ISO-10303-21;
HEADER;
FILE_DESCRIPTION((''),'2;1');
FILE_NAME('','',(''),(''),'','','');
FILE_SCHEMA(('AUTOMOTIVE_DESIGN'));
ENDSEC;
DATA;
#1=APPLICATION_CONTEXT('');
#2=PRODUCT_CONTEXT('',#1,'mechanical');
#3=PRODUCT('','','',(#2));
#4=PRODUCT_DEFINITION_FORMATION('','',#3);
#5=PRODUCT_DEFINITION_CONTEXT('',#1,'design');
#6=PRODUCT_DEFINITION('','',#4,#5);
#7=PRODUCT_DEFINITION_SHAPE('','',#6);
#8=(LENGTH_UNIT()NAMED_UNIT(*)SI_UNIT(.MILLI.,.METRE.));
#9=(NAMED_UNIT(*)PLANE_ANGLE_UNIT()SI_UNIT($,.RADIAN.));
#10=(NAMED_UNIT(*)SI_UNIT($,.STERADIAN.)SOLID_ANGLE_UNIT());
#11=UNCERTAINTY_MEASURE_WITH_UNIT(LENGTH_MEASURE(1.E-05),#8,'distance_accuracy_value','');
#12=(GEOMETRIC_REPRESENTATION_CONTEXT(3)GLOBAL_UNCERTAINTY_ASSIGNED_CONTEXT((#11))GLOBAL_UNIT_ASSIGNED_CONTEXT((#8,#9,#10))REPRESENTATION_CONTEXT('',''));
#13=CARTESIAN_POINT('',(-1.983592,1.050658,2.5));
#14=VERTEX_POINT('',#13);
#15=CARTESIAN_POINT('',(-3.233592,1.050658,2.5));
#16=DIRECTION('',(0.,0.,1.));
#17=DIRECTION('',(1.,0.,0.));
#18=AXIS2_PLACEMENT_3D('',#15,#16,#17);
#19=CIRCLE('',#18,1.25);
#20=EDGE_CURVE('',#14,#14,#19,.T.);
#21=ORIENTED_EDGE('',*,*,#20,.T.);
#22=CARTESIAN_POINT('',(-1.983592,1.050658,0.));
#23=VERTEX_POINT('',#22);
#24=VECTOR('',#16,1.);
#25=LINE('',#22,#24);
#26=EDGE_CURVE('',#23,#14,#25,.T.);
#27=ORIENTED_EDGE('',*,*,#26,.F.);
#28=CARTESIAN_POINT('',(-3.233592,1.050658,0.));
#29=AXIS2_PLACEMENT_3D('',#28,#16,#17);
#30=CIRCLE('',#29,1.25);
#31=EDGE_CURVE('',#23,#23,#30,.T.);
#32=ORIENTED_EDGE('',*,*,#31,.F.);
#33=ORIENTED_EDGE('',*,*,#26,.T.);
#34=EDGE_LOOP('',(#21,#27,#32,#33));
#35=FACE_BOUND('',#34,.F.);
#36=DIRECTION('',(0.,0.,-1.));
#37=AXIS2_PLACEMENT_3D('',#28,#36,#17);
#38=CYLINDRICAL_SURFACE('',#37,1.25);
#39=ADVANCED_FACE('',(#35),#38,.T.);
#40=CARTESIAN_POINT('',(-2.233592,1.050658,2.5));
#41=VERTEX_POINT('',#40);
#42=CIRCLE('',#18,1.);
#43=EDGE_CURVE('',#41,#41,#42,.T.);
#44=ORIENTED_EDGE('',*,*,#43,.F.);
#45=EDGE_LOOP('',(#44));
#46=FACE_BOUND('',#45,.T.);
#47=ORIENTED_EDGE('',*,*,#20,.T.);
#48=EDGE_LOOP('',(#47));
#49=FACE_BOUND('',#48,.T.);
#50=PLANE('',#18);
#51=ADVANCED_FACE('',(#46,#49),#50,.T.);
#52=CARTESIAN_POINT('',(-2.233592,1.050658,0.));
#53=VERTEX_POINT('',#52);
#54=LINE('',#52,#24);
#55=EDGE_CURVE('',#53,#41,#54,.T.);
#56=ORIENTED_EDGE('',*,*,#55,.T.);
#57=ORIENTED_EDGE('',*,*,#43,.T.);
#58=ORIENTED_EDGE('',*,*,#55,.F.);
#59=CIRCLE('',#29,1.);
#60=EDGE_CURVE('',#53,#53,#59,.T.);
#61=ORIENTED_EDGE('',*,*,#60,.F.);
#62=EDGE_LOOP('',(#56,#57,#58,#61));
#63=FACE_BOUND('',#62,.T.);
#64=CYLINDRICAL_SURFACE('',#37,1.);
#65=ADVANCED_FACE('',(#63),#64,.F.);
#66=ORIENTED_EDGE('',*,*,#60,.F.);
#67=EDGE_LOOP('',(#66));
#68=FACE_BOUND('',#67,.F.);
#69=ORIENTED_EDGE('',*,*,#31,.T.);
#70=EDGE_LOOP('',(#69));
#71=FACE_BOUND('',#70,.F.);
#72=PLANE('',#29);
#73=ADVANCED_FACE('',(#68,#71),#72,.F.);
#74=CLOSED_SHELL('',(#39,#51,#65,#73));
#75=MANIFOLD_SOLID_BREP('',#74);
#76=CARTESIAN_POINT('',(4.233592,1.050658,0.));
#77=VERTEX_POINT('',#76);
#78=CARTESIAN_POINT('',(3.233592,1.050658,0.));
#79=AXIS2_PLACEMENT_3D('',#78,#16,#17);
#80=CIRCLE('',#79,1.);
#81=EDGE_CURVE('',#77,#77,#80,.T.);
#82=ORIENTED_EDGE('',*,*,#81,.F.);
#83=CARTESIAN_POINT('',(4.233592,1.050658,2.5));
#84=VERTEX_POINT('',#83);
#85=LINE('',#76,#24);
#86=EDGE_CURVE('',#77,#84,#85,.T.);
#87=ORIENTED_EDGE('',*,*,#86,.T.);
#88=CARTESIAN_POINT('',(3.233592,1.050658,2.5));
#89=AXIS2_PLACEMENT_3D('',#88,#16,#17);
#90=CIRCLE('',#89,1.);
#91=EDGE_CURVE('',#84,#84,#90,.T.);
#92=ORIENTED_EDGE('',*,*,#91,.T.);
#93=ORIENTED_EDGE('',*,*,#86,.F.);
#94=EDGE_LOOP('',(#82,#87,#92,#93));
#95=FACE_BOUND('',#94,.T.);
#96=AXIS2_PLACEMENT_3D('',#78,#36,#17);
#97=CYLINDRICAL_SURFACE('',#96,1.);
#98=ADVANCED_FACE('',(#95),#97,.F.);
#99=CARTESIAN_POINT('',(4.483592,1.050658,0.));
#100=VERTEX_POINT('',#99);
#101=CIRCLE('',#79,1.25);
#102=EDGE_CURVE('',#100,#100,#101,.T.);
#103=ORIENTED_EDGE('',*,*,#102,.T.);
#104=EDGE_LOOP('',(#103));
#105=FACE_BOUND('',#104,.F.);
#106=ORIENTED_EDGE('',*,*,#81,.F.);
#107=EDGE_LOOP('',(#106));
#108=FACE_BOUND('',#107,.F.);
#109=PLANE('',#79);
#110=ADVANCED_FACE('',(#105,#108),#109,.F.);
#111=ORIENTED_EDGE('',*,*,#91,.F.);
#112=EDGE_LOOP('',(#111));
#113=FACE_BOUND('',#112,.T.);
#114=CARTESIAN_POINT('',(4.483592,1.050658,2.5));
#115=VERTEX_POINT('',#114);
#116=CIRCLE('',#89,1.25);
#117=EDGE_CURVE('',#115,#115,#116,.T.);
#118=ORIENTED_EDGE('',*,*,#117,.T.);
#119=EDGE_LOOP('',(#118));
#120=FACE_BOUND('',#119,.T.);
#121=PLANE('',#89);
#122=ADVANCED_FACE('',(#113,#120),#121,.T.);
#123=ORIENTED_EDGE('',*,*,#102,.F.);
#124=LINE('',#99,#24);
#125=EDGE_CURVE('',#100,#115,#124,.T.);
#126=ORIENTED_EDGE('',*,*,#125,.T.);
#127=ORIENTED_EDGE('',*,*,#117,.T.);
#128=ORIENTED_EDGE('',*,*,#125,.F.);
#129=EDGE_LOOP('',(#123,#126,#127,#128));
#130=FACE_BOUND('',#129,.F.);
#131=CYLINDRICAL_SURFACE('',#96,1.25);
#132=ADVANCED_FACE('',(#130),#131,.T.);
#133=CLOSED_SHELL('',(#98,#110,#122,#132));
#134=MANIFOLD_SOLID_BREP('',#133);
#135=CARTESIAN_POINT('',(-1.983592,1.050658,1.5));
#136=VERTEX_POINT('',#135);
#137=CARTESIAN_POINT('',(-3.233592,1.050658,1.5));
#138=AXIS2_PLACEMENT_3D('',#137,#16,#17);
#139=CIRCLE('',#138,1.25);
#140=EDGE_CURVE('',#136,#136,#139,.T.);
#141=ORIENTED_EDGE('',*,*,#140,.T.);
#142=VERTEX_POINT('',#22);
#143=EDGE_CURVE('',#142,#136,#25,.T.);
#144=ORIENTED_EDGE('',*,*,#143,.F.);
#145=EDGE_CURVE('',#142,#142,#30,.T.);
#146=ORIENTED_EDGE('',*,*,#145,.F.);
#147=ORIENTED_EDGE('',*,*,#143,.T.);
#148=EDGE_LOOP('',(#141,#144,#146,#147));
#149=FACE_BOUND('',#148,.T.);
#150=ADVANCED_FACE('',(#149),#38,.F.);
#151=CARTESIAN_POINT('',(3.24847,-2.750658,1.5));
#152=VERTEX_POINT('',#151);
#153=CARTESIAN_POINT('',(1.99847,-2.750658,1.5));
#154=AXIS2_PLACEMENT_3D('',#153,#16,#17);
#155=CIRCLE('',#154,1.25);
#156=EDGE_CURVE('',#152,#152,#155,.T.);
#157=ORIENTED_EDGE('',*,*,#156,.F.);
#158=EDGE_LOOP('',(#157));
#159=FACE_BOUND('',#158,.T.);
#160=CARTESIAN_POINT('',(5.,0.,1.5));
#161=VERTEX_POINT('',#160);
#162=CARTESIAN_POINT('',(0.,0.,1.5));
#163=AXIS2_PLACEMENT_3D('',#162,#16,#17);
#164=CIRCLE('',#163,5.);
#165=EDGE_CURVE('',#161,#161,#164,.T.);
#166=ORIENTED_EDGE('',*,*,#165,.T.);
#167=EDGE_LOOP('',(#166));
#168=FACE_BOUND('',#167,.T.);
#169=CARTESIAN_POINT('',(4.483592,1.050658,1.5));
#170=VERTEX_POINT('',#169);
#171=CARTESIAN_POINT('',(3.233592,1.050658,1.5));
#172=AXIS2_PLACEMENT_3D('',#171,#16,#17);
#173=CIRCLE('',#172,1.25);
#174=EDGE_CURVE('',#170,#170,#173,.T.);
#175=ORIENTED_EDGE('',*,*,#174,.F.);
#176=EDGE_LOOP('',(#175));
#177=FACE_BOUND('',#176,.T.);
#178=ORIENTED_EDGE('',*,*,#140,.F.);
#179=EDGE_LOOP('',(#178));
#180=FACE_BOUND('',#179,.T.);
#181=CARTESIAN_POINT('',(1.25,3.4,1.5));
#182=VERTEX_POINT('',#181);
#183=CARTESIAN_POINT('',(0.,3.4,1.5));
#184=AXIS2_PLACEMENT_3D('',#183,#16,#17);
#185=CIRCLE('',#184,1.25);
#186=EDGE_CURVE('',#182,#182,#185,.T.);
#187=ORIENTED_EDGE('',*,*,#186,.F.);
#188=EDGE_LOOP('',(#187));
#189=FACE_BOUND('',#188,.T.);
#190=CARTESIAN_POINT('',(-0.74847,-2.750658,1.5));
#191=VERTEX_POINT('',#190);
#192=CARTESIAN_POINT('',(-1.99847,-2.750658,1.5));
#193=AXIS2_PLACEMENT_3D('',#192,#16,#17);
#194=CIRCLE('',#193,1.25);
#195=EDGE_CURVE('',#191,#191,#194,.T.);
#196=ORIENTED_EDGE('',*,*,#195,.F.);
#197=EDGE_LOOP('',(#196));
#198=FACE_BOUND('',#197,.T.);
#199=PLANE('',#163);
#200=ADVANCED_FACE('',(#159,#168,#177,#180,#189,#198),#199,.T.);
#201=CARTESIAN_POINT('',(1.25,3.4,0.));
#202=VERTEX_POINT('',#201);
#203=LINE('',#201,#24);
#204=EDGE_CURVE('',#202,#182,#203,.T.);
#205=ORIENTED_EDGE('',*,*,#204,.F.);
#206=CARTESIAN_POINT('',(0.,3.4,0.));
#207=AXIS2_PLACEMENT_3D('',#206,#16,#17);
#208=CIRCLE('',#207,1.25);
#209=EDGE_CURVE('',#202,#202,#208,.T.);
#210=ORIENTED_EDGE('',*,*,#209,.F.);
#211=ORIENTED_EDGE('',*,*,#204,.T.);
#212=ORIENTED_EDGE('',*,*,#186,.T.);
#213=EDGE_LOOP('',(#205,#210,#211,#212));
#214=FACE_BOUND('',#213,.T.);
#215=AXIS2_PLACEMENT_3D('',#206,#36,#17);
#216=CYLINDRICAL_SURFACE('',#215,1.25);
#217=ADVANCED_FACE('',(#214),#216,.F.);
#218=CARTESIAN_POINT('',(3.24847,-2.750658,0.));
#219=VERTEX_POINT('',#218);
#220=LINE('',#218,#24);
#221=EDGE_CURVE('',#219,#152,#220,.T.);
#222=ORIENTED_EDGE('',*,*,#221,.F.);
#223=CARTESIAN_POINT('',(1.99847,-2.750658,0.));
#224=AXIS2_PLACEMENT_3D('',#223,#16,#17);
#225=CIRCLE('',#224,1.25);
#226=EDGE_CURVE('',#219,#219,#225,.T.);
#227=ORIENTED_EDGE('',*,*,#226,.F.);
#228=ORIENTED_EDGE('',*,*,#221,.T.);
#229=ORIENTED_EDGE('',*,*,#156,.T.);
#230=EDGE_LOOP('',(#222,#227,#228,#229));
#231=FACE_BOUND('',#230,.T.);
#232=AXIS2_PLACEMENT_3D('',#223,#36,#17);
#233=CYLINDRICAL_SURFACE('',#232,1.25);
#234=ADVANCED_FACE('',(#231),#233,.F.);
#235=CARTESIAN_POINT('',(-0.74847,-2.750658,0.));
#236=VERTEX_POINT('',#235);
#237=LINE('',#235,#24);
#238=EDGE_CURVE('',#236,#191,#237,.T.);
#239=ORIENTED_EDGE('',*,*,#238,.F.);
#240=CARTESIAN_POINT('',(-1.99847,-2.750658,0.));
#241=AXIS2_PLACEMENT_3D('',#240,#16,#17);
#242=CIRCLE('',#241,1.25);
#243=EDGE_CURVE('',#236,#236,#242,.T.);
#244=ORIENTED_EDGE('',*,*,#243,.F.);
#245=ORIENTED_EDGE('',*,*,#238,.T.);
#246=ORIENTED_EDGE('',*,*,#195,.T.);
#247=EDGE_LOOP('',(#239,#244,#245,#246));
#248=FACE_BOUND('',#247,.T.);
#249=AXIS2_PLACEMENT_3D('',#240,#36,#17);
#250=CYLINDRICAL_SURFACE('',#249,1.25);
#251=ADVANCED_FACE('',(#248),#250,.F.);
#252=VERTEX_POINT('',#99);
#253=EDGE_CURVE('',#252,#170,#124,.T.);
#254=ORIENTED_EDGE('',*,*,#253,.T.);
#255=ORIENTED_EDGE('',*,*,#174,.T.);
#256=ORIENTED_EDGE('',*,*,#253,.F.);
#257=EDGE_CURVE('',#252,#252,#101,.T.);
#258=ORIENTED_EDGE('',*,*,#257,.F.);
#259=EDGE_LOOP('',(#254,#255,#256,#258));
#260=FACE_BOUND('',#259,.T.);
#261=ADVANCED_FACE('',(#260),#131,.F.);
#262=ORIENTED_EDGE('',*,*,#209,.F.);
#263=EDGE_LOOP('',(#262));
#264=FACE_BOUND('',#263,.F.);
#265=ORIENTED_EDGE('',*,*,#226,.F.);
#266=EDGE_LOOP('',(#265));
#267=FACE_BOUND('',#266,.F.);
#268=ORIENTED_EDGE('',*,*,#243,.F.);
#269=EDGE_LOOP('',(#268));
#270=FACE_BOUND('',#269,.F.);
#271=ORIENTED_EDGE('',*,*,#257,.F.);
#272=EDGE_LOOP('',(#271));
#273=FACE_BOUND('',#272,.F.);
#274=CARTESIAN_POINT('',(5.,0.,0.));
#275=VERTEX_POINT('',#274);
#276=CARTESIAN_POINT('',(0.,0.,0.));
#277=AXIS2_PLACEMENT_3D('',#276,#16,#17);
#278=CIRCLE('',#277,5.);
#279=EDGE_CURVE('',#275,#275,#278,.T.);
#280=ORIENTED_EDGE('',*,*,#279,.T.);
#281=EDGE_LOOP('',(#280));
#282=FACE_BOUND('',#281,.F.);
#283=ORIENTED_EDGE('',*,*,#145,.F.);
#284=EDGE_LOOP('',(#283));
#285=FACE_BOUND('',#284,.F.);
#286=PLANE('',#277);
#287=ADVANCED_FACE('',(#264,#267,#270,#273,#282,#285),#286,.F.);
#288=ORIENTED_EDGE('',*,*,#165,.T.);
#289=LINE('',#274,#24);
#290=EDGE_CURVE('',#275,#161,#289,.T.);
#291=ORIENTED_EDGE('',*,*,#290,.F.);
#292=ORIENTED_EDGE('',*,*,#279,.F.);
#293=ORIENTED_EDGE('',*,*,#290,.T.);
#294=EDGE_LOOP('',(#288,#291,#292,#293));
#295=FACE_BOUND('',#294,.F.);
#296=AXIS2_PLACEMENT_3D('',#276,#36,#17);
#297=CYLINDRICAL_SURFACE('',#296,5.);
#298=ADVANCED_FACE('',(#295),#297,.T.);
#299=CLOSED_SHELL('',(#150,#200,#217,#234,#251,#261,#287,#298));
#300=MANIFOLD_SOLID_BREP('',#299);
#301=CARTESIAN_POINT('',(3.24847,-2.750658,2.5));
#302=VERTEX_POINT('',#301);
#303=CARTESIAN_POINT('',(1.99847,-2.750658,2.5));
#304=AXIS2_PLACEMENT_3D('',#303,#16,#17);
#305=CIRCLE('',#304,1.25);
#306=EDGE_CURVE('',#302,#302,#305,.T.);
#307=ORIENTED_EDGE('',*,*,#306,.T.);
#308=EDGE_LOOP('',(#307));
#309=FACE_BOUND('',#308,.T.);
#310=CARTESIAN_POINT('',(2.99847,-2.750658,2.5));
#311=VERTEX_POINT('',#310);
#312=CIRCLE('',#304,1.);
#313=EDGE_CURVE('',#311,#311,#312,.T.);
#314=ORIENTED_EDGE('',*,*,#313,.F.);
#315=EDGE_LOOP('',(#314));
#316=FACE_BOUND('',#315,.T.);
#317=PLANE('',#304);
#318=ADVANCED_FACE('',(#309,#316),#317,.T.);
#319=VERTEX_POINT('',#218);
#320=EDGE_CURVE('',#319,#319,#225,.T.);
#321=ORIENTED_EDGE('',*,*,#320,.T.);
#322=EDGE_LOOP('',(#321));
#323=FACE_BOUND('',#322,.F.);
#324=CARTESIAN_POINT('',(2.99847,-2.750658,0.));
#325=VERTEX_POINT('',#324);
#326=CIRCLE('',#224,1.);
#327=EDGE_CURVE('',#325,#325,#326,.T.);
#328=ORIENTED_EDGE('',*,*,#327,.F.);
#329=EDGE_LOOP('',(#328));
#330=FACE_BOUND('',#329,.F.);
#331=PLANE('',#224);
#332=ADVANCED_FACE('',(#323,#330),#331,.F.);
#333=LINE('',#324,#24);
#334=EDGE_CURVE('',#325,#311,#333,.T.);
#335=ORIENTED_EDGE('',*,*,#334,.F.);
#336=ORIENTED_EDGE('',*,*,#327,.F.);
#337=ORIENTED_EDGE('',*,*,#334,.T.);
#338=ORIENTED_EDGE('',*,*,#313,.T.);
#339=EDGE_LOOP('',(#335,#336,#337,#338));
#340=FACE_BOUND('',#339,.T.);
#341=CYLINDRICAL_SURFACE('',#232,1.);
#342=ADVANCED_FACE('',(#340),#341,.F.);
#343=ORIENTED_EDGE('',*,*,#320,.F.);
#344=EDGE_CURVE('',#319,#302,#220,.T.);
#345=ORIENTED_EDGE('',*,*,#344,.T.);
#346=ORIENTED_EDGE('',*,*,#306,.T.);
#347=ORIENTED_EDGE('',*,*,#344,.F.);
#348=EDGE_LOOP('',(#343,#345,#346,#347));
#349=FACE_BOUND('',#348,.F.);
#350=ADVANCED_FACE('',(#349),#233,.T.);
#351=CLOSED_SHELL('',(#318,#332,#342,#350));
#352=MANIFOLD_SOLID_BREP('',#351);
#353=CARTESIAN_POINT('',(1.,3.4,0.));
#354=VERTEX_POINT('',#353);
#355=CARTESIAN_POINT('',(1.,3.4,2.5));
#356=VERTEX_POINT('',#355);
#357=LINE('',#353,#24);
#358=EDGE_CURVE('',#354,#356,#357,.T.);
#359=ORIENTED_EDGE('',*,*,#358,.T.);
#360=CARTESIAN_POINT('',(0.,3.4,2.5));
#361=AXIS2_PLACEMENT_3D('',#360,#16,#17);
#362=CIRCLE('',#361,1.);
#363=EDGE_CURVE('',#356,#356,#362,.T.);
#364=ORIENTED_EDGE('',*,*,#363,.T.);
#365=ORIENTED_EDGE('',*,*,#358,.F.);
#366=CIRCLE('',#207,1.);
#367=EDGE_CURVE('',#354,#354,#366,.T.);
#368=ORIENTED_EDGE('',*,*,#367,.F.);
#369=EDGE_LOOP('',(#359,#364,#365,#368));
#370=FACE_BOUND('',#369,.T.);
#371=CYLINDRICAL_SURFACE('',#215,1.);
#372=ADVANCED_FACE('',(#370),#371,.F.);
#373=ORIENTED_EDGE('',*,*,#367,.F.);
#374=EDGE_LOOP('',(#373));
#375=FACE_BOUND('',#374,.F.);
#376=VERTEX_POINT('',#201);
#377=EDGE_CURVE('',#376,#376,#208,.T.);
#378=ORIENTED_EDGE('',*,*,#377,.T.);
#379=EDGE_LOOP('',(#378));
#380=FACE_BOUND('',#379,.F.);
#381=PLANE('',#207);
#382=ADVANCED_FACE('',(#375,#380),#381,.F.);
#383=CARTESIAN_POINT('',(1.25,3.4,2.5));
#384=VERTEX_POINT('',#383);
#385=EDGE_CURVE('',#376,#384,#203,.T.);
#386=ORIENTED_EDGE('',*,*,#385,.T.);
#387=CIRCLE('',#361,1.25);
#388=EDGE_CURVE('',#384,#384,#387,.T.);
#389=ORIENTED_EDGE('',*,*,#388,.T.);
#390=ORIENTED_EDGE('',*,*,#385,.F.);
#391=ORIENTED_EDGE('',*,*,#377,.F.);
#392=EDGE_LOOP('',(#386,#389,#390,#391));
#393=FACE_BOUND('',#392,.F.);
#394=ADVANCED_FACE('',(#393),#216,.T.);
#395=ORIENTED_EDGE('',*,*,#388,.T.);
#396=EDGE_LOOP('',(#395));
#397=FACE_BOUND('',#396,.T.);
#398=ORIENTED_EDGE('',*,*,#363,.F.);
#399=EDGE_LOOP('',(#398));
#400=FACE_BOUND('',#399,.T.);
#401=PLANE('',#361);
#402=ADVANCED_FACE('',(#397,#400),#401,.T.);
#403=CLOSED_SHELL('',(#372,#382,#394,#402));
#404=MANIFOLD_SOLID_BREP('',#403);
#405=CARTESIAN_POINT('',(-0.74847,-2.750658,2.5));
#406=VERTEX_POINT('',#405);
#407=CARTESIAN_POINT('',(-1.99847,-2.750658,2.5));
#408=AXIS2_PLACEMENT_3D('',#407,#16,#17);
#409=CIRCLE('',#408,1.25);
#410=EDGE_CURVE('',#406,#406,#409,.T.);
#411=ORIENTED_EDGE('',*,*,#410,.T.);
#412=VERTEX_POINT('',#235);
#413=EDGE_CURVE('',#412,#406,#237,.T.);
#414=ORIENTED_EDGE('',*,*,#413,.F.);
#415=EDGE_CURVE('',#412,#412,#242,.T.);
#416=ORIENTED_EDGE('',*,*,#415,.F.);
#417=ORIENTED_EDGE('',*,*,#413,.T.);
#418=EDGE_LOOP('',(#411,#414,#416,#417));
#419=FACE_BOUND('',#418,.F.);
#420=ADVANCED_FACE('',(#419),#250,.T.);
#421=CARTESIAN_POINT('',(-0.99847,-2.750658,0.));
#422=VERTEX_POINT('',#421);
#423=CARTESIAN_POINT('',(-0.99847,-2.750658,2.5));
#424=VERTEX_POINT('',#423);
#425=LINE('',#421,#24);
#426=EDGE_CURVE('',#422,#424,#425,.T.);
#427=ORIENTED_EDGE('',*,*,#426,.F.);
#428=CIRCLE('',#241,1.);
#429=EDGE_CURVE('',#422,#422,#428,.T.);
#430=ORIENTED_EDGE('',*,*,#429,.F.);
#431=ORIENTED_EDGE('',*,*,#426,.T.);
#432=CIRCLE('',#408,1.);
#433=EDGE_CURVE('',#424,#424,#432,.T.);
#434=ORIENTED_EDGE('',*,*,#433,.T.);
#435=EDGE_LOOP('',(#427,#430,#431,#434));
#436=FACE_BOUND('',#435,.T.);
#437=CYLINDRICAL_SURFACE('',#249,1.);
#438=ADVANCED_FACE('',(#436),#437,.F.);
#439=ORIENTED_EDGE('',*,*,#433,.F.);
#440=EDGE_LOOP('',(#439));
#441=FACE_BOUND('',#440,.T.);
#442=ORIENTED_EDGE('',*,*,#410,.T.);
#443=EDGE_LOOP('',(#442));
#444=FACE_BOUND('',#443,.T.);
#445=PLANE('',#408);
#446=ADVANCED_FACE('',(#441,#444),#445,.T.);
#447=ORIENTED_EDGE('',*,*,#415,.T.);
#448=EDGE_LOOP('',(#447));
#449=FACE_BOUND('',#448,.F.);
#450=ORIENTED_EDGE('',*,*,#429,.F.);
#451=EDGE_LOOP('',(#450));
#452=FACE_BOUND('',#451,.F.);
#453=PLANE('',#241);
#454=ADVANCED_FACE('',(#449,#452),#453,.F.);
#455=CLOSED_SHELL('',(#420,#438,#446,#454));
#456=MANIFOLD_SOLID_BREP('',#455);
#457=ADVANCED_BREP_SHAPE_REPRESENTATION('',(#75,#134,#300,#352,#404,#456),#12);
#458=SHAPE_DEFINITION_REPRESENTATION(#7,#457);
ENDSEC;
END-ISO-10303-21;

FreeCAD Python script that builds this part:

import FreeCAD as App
import Part
import Sketcher

V = App.Vector

doc = App.newDocument("Part")
body = doc.addObject("PartDesign::Body", "Body")
body.AllowCompound = True

# Sketch on XY plane
sketch1 = body.newObject("Sketcher::SketchObject", "Sketch")
sketch1.AttachmentSupport = (doc.getObject("XY_Plane"), [""])
sketch1.MapMode = "FlatFace"
sketch1.addGeometry([
    Part.Circle(V(-2, -2.8, 0), V(0, 0, 1), 1.2),  # 0
    Part.Circle(V(-2, -2.8, 0), V(0, 0, 1), 1),  # 1
    Part.Circle(V(-3.2, 1.1, 0), V(0, 0, 1), 1.2),  # 2
    Part.Circle(V(-3.2, 1.1, 0), V(0, 0, 1), 1),  # 3
    Part.Circle(V(2, -2.8, 0), V(0, 0, 1), 1.2),  # 4
    Part.Circle(V(2, -2.8, 0), V(0, 0, 1), 1),  # 5
    Part.Circle(V(3.2, 1.1, 0), V(0, 0, 1), 1.2),  # 6
    Part.Circle(V(3.2, 1.1, 0), V(0, 0, 1), 1),  # 7
    Part.Circle(V(0, 3.4, 0), V(0, 0, 1), 1.2),  # 8
    Part.Circle(V(0, 3.4, 0), V(0, 0, 1), 1),  # 9
], False)
sketch1.addConstraint([
    Sketcher.Constraint("Coincident", 1, 3, 0, 3),
    Sketcher.Constraint("Coincident", 3, 3, 2, 3),
    Sketcher.Constraint("Coincident", 5, 3, 4, 3),
    Sketcher.Constraint("Coincident", 7, 3, 6, 3),
    Sketcher.Constraint("Coincident", 9, 3, 8, 3),
    Sketcher.Constraint("Equal", 0, 2),
    Sketcher.Constraint("Equal", 1, 3),
    Sketcher.Constraint("Equal", 2, 4),
    Sketcher.Constraint("Equal", 3, 5),
    Sketcher.Constraint("Equal", 4, 6),
    Sketcher.Constraint("Equal", 5, 7),
    Sketcher.Constraint("Equal", 6, 8),
    Sketcher.Constraint("Equal", 7, 9),
    Sketcher.Constraint("Symmetric", 0, 3, 4, 3, -2),
    Sketcher.Constraint("Symmetric", 2, 3, 6, 3, -2),
    Sketcher.Constraint("PointOnObject", 8, 3, -2),
    Sketcher.Constraint("Diameter", 1, 2.0),
    Sketcher.Constraint("Diameter", 0, 2.5),
    Sketcher.Constraint("DistanceY", -1, 1, 8, 3, 3.4),
    Sketcher.Constraint("DistanceX", 0, 3, -1, 1, 1.99847),
    Sketcher.Constraint("DistanceY", 0, 3, -1, 1, 2.750658),
    Sketcher.Constraint("DistanceX", 2, 3, -1, 1, 3.233592),
    Sketcher.Constraint("DistanceY", -1, 1, 2, 3, 1.050658),
])
pad1 = body.newObject("PartDesign::Pad", "Pad")
pad1.Profile = sketch1
pad1.Length = 2.5
body2 = doc.addObject("PartDesign::Body", "Body001")

# Sketch on XY plane
sketch2 = body2.newObject("Sketcher::SketchObject", "Sketch001")
sketch2.AttachmentSupport = (doc.getObject("XY_Plane001"), [""])
sketch2.MapMode = "FlatFace"
sketch2.addGeometry([
    Part.Circle(V(0, 0, 0), V(0, 0, 1), 5),  # 0
    Part.Circle(V(-2, -2.8, 0), V(0, 0, 1), 1.2),  # 1
    Part.Circle(V(2, -2.8, 0), V(0, 0, 1), 1.2),  # 2
    Part.Circle(V(-3.2, 1.1, 0), V(0, 0, 1), 1.2),  # 3
    Part.Circle(V(3.2, 1.1, 0), V(0, 0, 1), 1.2),  # 4
    Part.Circle(V(0, 3.4, 0), V(0, 0, 1), 1.2),  # 5
], False)
sketch2.addConstraint([
    Sketcher.Constraint("Coincident", 0, 3, -1, 1),
    Sketcher.Constraint("Equal", 1, 2),
    Sketcher.Constraint("Equal", 2, 3),
    Sketcher.Constraint("Equal", 3, 4),
    Sketcher.Constraint("Equal", 4, 5),
    Sketcher.Constraint("Symmetric", 1, 3, 2, 3, -2),
    Sketcher.Constraint("Symmetric", 3, 3, 4, 3, -2),
    Sketcher.Constraint("PointOnObject", 5, 3, -2),
    Sketcher.Constraint("Diameter", 0, 10.0),
    Sketcher.Constraint("Diameter", 1, 2.5),
    Sketcher.Constraint("DistanceY", -1, 1, 5, 3, 3.4),
    Sketcher.Constraint("DistanceX", 1, 3, -1, 1, 1.99847),
    Sketcher.Constraint("DistanceY", 1, 3, -1, 1, 2.750658),
    Sketcher.Constraint("DistanceX", 3, 3, -1, 1, 3.233592),
    Sketcher.Constraint("DistanceY", -1, 1, 3, 3, 1.050658),
])
pad2 = body2.newObject("PartDesign::Pad", "Pad001")
pad2.Profile = sketch2
pad2.Length = 1.5

doc.recompute()
